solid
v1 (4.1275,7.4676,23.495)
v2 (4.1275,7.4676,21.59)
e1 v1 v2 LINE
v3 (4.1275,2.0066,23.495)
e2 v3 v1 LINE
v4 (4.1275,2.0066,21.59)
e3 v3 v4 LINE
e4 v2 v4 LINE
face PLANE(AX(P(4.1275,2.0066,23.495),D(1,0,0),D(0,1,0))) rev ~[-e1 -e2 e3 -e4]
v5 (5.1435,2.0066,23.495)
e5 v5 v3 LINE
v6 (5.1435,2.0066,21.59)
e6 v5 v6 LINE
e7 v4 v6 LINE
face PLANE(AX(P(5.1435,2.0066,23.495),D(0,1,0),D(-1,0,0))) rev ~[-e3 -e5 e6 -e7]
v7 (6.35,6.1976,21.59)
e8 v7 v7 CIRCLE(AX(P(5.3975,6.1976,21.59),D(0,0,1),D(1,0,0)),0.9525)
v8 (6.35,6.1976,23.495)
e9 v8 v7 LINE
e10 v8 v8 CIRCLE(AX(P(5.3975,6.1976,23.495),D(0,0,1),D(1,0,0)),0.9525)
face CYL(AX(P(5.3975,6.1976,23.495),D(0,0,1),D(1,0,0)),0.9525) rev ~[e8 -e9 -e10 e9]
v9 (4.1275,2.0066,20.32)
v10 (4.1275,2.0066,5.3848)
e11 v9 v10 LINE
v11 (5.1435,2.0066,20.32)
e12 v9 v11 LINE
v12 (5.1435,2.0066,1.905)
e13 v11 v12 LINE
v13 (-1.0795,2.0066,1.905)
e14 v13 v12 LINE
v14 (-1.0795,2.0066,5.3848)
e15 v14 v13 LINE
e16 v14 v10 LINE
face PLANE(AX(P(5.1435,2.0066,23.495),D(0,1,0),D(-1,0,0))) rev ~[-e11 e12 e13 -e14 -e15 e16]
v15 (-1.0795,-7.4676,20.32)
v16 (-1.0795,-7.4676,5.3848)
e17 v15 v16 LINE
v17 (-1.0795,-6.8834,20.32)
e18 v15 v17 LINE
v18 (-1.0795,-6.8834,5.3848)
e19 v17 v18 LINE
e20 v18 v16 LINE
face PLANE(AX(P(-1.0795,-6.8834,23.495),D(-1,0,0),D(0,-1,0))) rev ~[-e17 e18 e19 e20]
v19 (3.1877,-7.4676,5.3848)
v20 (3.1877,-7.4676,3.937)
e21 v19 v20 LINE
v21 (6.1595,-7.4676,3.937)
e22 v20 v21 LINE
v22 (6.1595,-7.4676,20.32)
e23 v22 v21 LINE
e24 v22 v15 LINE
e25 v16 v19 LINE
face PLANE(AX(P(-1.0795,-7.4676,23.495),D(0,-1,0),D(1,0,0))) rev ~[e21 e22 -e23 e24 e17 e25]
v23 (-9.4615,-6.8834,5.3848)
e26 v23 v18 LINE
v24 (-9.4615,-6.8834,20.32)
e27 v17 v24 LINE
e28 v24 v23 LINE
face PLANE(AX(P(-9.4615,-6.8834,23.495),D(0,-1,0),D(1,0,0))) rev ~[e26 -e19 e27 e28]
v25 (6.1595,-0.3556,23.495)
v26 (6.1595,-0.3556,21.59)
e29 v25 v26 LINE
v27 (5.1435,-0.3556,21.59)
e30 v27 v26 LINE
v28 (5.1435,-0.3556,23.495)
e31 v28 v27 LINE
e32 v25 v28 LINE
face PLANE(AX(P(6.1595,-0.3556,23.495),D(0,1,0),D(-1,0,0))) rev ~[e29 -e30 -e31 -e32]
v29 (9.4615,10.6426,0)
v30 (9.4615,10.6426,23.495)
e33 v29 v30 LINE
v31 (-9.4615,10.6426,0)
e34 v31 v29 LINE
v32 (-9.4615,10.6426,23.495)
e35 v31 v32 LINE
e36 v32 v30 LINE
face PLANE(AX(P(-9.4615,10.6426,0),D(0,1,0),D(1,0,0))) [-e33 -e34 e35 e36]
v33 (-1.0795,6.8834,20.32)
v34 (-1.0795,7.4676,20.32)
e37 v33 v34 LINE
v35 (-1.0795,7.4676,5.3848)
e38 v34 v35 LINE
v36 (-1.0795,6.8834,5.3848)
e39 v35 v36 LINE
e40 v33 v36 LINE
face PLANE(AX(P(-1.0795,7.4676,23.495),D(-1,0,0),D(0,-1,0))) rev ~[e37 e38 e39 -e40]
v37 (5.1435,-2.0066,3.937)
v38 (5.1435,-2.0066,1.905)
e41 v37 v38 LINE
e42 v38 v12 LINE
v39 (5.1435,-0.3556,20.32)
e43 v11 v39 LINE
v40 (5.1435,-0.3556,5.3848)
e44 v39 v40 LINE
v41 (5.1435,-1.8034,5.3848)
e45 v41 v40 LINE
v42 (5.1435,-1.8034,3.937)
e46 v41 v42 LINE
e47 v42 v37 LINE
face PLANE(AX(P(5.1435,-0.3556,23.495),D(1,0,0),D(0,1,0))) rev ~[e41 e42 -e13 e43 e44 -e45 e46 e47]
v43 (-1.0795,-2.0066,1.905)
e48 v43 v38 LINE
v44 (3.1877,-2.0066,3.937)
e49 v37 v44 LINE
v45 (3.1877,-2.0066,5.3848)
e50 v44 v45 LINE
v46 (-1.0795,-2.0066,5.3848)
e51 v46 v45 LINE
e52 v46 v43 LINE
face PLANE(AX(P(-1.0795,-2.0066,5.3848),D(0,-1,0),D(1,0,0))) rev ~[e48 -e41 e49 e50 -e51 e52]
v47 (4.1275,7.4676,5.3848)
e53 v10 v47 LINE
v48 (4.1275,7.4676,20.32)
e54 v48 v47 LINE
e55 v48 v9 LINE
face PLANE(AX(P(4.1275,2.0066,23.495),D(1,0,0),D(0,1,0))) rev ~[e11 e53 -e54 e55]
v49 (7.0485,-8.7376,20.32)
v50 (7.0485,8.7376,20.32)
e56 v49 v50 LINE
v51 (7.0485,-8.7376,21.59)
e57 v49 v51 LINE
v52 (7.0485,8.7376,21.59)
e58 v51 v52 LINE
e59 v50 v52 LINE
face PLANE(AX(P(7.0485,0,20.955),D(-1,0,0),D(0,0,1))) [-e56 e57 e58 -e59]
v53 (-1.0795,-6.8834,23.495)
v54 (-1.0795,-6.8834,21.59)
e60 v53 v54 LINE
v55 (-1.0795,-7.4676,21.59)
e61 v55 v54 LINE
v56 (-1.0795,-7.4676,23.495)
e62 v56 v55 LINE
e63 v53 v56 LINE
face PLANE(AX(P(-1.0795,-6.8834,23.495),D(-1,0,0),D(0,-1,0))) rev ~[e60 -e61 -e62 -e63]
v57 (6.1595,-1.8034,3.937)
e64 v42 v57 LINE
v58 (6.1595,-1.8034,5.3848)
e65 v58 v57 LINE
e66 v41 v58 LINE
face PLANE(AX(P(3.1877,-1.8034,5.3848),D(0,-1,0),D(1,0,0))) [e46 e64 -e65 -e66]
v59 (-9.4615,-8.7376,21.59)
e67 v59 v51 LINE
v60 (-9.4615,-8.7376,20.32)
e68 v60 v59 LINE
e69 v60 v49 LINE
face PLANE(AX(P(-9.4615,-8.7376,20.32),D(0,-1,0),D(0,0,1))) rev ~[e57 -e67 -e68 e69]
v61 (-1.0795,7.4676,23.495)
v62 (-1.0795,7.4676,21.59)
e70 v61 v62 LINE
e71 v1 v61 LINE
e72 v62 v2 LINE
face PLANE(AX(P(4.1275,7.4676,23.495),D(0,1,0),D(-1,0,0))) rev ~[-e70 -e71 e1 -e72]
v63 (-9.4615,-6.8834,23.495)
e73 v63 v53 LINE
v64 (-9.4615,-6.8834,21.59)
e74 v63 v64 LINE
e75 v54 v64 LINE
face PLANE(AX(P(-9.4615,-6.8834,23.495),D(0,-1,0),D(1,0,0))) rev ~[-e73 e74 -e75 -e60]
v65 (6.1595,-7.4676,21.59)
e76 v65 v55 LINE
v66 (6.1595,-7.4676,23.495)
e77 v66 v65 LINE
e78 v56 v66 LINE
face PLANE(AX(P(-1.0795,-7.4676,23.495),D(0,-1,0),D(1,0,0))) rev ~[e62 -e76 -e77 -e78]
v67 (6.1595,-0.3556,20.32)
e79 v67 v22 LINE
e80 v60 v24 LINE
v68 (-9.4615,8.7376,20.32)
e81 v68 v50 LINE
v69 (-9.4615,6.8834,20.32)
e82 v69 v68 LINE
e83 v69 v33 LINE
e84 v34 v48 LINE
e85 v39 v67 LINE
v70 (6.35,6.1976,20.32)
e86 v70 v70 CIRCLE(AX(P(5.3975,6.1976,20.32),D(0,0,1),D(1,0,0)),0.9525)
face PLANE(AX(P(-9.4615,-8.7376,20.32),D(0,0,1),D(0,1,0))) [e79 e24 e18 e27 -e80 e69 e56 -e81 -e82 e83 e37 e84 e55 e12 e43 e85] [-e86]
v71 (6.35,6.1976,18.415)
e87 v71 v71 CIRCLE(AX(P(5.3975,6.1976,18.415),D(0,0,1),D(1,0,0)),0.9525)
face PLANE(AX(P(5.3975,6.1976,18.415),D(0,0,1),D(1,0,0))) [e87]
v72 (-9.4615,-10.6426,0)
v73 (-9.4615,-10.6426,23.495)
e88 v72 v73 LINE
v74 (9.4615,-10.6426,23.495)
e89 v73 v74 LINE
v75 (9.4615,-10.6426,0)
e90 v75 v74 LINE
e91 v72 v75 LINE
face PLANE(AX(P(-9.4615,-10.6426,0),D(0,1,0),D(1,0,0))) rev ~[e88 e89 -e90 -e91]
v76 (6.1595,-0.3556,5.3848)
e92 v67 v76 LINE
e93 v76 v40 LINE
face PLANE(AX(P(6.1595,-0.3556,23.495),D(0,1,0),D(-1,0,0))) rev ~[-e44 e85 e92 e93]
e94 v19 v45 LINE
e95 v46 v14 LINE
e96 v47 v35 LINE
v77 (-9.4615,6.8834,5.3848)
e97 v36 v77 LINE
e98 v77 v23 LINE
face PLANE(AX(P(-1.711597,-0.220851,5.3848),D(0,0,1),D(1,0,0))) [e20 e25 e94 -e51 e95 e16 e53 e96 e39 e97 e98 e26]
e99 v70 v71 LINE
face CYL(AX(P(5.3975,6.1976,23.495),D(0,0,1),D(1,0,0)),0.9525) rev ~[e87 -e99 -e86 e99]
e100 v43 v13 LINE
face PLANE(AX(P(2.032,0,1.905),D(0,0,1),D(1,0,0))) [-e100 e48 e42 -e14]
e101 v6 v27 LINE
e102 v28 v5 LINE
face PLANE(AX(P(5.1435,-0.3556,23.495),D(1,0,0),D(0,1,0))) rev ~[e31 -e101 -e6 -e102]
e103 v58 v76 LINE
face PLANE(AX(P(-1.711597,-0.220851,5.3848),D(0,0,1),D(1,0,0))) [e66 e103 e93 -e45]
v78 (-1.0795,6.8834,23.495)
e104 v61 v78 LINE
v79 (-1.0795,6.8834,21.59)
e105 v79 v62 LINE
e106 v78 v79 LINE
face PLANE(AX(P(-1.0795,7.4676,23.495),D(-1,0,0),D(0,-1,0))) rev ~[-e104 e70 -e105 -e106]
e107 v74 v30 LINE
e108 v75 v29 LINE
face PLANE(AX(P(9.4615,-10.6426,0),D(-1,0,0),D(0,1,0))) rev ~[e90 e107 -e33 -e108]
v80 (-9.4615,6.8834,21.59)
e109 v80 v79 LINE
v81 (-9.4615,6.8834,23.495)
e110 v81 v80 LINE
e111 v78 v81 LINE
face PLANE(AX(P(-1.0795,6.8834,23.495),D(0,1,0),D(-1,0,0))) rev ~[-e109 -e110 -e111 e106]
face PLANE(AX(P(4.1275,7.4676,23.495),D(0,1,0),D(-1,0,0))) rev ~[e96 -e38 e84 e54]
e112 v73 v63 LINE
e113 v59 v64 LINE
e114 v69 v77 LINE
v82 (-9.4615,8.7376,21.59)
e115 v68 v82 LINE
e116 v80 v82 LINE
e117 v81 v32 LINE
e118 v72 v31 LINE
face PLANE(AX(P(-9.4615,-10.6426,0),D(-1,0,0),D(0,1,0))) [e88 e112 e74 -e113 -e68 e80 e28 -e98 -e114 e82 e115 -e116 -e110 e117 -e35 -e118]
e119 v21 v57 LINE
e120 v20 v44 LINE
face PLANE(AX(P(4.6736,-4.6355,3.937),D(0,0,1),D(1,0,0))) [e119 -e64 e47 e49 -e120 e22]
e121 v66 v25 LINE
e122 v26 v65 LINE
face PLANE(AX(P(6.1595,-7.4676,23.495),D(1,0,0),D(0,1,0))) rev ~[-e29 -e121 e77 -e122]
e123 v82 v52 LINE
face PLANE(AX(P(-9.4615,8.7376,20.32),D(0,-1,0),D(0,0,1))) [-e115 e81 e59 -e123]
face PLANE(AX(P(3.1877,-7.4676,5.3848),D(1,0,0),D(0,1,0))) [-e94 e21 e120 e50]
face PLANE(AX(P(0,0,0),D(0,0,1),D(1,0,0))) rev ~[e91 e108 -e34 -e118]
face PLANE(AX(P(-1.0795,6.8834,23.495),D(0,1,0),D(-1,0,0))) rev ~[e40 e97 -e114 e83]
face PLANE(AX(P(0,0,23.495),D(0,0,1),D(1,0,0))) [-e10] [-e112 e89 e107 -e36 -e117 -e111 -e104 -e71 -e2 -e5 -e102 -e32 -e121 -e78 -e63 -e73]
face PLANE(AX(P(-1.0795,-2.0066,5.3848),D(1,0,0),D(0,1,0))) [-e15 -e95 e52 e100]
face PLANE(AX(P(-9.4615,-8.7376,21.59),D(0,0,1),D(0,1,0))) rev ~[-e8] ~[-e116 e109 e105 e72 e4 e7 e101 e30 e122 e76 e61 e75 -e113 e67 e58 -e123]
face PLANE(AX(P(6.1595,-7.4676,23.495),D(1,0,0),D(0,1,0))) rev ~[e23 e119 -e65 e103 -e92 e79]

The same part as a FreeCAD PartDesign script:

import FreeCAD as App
import Part
import Sketcher

V = App.Vector
Q = App.Units.Quantity


def add_polygon(sketch, points):
    """Adds a closed chain of lines whose ends are joined by coincident constraints."""
    first, n = sketch.GeometryCount, len(points)
    for a, b in zip(points, points[1:] + points[:1]):
        sketch.addGeometry(Part.LineSegment(App.Vector(*a, 0), App.Vector(*b, 0)), False)
    for i in range(n):
        sketch.addConstraint(Sketcher.Constraint("Coincident", first + i, 2, first + (i + 1) % n, 1))

doc = App.newDocument("Part")
body = doc.addObject("PartDesign::Body", "Body")

# Sketch on XY plane
sketch1 = body.newObject("Sketcher::SketchObject", "Sketch")
sketch1.AttachmentSupport = (doc.getObject("XY_Plane"), [""])
sketch1.MapMode = "FlatFace"
add_polygon(sketch1, [(-9, 11), (-9, -11), (9, -11), (9, 11)])  # lines 0-3
sketch1.addConstraint([
    Sketcher.Constraint("Vertical", 0),
    Sketcher.Constraint("Horizontal", 1),
    Sketcher.Constraint("Vertical", 2),
    Sketcher.Constraint("Horizontal", 3),
    Sketcher.Constraint("Symmetric", 0, 2, 2, 2, -1, 1),
    Sketcher.Constraint("DistanceX", 1, 1, 1, 2, Q("0.745 in")),
    Sketcher.Constraint("DistanceY", 0, 2, 0, 1, Q("0.838 in")),
])
pad1 = body.newObject("PartDesign::Pad", "Pad")
pad1.Profile = sketch1
pad1.Length = Q("0.925 in")

# Sketch on XY plane
sketch2 = body.newObject("Sketcher::SketchObject", "Sketch001")
sketch2.AttachmentSupport = (doc.getObject("XY_Plane"), [""])
sketch2.MapMode = "FlatFace"
sketch2.AttachmentOffset = App.Placement(V(0, 0, 0.925 * 25.4), App.Rotation())
add_polygon(sketch2, [(-9.5, 6.9), (-9.5, -6.9), (-1.1, -6.9), (-1.1, -7.5), (6.2, -7.5), (6.2, -0.4), (5.1, -0.4), (5.1, 2), (4.1, 2), (4.1, 7.5), (-1.1, 7.5), (-1.1, 6.9)])  # lines 0-11
sketch2.addConstraint([
    Sketcher.Constraint("Vertical", 0),
    Sketcher.Constraint("Horizontal", 1),
    Sketcher.Constraint("Vertical", 2),
    Sketcher.Constraint("Horizontal", 3),
    Sketcher.Constraint("Vertical", 4),
    Sketcher.Constraint("Horizontal", 5),
    Sketcher.Constraint("Vertical", 6),
    Sketcher.Constraint("Horizontal", 7),
    Sketcher.Constraint("Vertical", 8),
    Sketcher.Constraint("Horizontal", 9),
    Sketcher.Constraint("Vertical", 10),
    Sketcher.Constraint("Horizontal", 11),
    Sketcher.Constraint("Symmetric", 2, 2, 9, 2, -1),
    Sketcher.Constraint("Equal", 5, 7),
    Sketcher.Constraint("Equal", 2, 10),
    Sketcher.Constraint("DistanceX", 1, 1, 1, 2, Q("0.33 in")),
    Sketcher.Constraint("DistanceX", 5, 2, 5, 1, Q("0.04 in")),
    Sketcher.Constraint("DistanceY", 4, 1, 4, 2, Q("0.28 in")),
    Sketcher.Constraint("DistanceX", 3, 1, 3, 2, Q("0.285 in")),
    Sketcher.Constraint("DistanceY", 0, 2, 0, 1, Q("0.542 in")),
    Sketcher.Constraint("DistanceY", 2, 2, 2, 1, Q("0.023 in")),
    Sketcher.Constraint("DistanceY", 6, 1, 6, 2, Q("0.093 in")),
    Sketcher.Constraint("DistanceX", 0, 2, -1, 1, Q("0.3725 in")),
])
pocket1 = body.newObject("PartDesign::Pocket", "Pocket")
pocket1.Profile = sketch2
pocket1.Length = Q("0.713 in")

# Sketch on XY plane
sketch3 = body.newObject("Sketcher::SketchObject", "Sketch002")
sketch3.AttachmentSupport = (doc.getObject("XY_Plane"), [""])
sketch3.MapMode = "FlatFace"
sketch3.AttachmentOffset = App.Placement(V(0, 0, 0.212 * 25.4), App.Rotation())
add_polygon(sketch3, [(-1.1, 2), (-1.1, -2), (5.1, -2), (5.1, 2)])  # lines 0-3
sketch3.addConstraint([
    Sketcher.Constraint("Vertical", 0),
    Sketcher.Constraint("Horizontal", 1),
    Sketcher.Constraint("Vertical", 2),
    Sketcher.Constraint("Horizontal", 3),
    Sketcher.Constraint("DistanceX", 1, 1, 1, 2, Q("0.245 in")),
    Sketcher.Constraint("DistanceY", 0, 2, 0, 1, Q("0.158 in")),
    Sketcher.Constraint("DistanceY", 0, 2, -1, 1, Q("0.079 in")),
    Sketcher.Constraint("DistanceX", 0, 2, -1, 1, Q("0.0425 in")),
])
pocket2 = body.newObject("PartDesign::Pocket", "Pocket001")
pocket2.Profile = sketch3
pocket2.Length = Q("0.137 in")

# Sketch on XY plane
sketch4 = body.newObject("Sketcher::SketchObject", "Sketch003")
sketch4.AttachmentSupport = (doc.getObject("XY_Plane"), [""])
sketch4.MapMode = "FlatFace"
sketch4.AttachmentOffset = App.Placement(V(0, 0, 0.212 * 25.4), App.Rotation())
add_polygon(sketch4, [(3.2, -1.8), (3.2, -7.5), (6.2, -7.5), (6.2, -1.8)])  # lines 0-3
sketch4.addConstraint([
    Sketcher.Constraint("Vertical", 0),
    Sketcher.Constraint("Horizontal", 1),
    Sketcher.Constraint("Vertical", 2),
    Sketcher.Constraint("Horizontal", 3),
    Sketcher.Constraint("DistanceX", 1, 1, 1, 2, Q("0.117 in")),
    Sketcher.Constraint("DistanceY", 0, 2, 0, 1, Q("0.223 in")),
    Sketcher.Constraint("DistanceY", 0, 2, -1, 1, Q("0.294 in")),
    Sketcher.Constraint("DistanceX", -1, 1, 0, 2, Q("0.1255 in")),
])
pocket3 = body.newObject("PartDesign::Pocket", "Pocket002")
pocket3.Profile = sketch4
pocket3.Length = Q("0.057 in")

# Sketch on YZ plane
sketch5 = body.newObject("Sketcher::SketchObject", "Sketch004")
sketch5.AttachmentSupport = (doc.getObject("YZ_Plane"), [""])
sketch5.MapMode = "FlatFace"
sketch5.AttachmentOffset = App.Placement(V(0, 0, -0.3725 * 25.4), App.Rotation())
add_polygon(sketch5, [(8.7, 20.3), (-8.7, 20.3), (-8.7, 21.6), (8.7, 21.6)])  # lines 0-3
sketch5.addConstraint([
    Sketcher.Constraint("Horizontal", 0),
    Sketcher.Constraint("Vertical", 1),
    Sketcher.Constraint("Horizontal", 2),
    Sketcher.Constraint("Vertical", 3),
    Sketcher.Constraint("DistanceY", 1, 1, 1, 2, Q("0.05 in")),
    Sketcher.Constraint("DistanceY", -1, 1, 0, 2, Q("0.8 in")),
    Sketcher.Constraint("DistanceX", 0, 2, 0, 1, Q("0.688 in")),
    Sketcher.Constraint("DistanceX", 0, 2, -1, 1, Q("0.344 in")),
])
pocket4 = body.newObject("PartDesign::Pocket", "Pocket003")
pocket4.Profile = sketch5
pocket4.Length = Q("0.65 in")
pocket4.Reversed = True

# Sketch on XY plane
sketch6 = body.newObject("Sketcher::SketchObject", "Sketch005")
sketch6.AttachmentSupport = (doc.getObject("XY_Plane"), [""])
sketch6.MapMode = "FlatFace"
sketch6.AttachmentOffset = App.Placement(V(0, 0, 0.925 * 25.4), App.Rotation())
sketch6.addGeometry(Part.Circle(V(5.4, 6.2, 0), V(0, 0, 1), 1), False)
sketch6.addConstraint([
    Sketcher.Constraint("Diameter", 0, Q("0.075 in")),
    Sketcher.Constraint("DistanceY", -1, 1, 0, 3, Q("0.244 in")),
    Sketcher.Constraint("DistanceX", -1, 1, 0, 3, Q("0.2125 in")),
])
pocket5 = body.newObject("PartDesign::Pocket", "Pocket004")
pocket5.Profile = sketch6
pocket5.Length = Q("0.2 in")

doc.recompute()
